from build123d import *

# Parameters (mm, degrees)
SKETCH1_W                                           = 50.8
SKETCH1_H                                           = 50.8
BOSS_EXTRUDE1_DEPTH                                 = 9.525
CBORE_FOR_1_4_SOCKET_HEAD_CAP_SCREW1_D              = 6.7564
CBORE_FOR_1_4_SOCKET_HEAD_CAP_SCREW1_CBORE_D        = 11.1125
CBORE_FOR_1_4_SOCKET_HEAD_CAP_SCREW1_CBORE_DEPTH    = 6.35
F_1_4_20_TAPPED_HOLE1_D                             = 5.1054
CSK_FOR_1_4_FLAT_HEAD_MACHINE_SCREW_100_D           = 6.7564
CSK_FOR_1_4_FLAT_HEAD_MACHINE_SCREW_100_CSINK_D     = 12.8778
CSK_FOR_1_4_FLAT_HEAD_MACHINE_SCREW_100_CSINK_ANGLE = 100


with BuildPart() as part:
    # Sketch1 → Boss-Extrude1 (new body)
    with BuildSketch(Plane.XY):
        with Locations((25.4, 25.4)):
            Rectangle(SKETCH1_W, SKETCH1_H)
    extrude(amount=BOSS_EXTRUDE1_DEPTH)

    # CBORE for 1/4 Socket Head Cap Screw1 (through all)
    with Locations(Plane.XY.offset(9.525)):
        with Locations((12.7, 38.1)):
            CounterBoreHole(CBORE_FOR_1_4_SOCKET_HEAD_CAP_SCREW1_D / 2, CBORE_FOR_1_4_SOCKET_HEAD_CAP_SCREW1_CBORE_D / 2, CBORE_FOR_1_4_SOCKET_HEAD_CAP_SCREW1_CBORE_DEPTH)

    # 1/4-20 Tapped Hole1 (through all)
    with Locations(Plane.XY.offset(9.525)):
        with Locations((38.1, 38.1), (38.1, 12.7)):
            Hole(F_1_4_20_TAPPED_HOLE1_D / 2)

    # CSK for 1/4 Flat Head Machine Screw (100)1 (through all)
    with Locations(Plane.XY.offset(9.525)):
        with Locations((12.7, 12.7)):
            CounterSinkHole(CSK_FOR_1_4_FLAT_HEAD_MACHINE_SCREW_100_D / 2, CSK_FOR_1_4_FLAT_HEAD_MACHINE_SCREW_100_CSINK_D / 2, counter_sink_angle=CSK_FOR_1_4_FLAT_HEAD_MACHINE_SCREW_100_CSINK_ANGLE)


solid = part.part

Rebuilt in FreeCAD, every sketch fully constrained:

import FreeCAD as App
import Part
import Sketcher

V = App.Vector
Q = App.Units.Quantity

doc = App.newDocument("Part")
body = doc.addObject("PartDesign::Body", "Body")

sketch1 = doc.addObject("Sketcher::SketchObject", "Sketch")
body.addObject(sketch1)
sketch1.AttachmentSupport = (doc.XY_Plane, [""])
sketch1.MapMode = "FlatFace"
sketch1.addGeometry([
    Part.LineSegment(V(0, 51, 0), V(0, 0, 0)),
    Part.LineSegment(V(0, 0, 0), V(51, 0, 0)),
    Part.LineSegment(V(51, 0, 0), V(51, 51, 0)),
    Part.LineSegment(V(51, 51, 0), V(0, 51, 0)),
], False)
sketch1.addConstraint([
    Sketcher.Constraint("Coincident", 0, 2, 1, 1),
    Sketcher.Constraint("Coincident", 1, 2, 2, 1),
    Sketcher.Constraint("Coincident", 2, 2, 3, 1),
    Sketcher.Constraint("Coincident", 3, 2, 0, 1),
    Sketcher.Constraint("Vertical", 0),
    Sketcher.Constraint("Horizontal", 1),
    Sketcher.Constraint("Vertical", 2),
    Sketcher.Constraint("Horizontal", 3),
    Sketcher.Constraint("Coincident", 0, 2, -1, 1),
    Sketcher.Constraint("Equal", 3, 0),
    Sketcher.Constraint("DistanceX", 1, 1, 1, 2, Q("2 in")),
])
pad1 = doc.addObject("PartDesign::Pad", "Pad")
body.addObject(pad1)
pad1.Profile = sketch1
pad1.Length = Q("0.375 in")

sketch2 = doc.addObject("Sketcher::SketchObject", "Sketch001")
body.addObject(sketch2)
sketch2.AttachmentSupport = (doc.XY_Plane, [""])
sketch2.MapMode = "FlatFace"
sketch2.AttachmentOffset = App.Placement(V(0, 0, 0.375 * 25.4), App.Rotation())
sketch2.addGeometry(Part.Circle(V(12.7, 38.1, 0), V(0, 0, 1), 3.4), False)
sketch2.addConstraint([
    Sketcher.Constraint("Diameter", 0, Q("0.266 in")),
    Sketcher.Constraint("DistanceX", -1, 1, 0, 3, Q("0.5 in")),
    Sketcher.Constraint("DistanceY", -1, 1, 0, 3, Q("1.5 in")),
])
doc.recompute()
hole = doc.addObject("PartDesign::Hole", "Hole")
body.addObject(hole)
hole.Profile = sketch2
hole.ThreadType = "None"
hole.Diameter = Q("0.266 in")
hole.DepthType = "ThroughAll"
hole.HoleCutType = "Counterbore"
hole.HoleCutDiameter = Q("0.4375 in")
hole.HoleCutDepth = Q("0.25 in")

sketch3 = doc.addObject("Sketcher::SketchObject", "Sketch002")
body.addObject(sketch3)
sketch3.AttachmentSupport = (doc.XY_Plane, [""])
sketch3.MapMode = "FlatFace"
sketch3.AttachmentOffset = App.Placement(V(0, 0, 0.375 * 25.4), App.Rotation())
sketch3.addGeometry([
    Part.Circle(V(38.1, 38.1, 0), V(0, 0, 1), 2.6),
    Part.Circle(V(38.1, 12.7, 0), V(0, 0, 1), 2.6),
], False)
sketch3.addConstraint([
    Sketcher.Constraint("Equal", 0, 1),
    Sketcher.Constraint("Vertical", 0, 3, 1, 3),
    Sketcher.Constraint("Diameter", 0, Q("0.201 in")),
    Sketcher.Constraint("DistanceY", 1, 3, 0, 3, Q("1 in")),
    Sketcher.Constraint("DistanceX", -1, 1, 0, 3, Q("1.5 in")),
    Sketcher.Constraint("DistanceY", -1, 1, 0, 3, Q("1.5 in")),
])
doc.recompute()
hole2 = doc.addObject("PartDesign::Hole", "Hole001")
body.addObject(hole2)
hole2.Profile = sketch3
hole2.ThreadType = "None"
hole2.Diameter = Q("0.201 in")
hole2.DepthType = "ThroughAll"

sketch4 = doc.addObject("Sketcher::SketchObject", "Sketch003")
body.addObject(sketch4)
sketch4.AttachmentSupport = (doc.XY_Plane, [""])
sketch4.MapMode = "FlatFace"
sketch4.AttachmentOffset = App.Placement(V(0, 0, 0.375 * 25.4), App.Rotation())
sketch4.addGeometry(Part.Circle(V(12.7, 12.7, 0), V(0, 0, 1), 3.4), False)
sketch4.addConstraint([
    Sketcher.Constraint("Diameter", 0, Q("0.266 in")),
    Sketcher.Constraint("DistanceX", -1, 1, 0, 3, Q("0.5 in")),
    Sketcher.Constraint("DistanceY", -1, 1, 0, 3, Q("0.5 in")),
])
doc.recompute()
hole3 = doc.addObject("PartDesign::Hole", "Hole002")
body.addObject(hole3)
hole3.Profile = sketch4
hole3.ThreadType = "None"
hole3.Diameter = Q("0.266 in")
hole3.DepthType = "ThroughAll"
hole3.HoleCutType = "Countersink"
hole3.HoleCutDiameter = Q("0.507 in")
hole3.HoleCutCountersinkAngle = 100

doc.recompute()
